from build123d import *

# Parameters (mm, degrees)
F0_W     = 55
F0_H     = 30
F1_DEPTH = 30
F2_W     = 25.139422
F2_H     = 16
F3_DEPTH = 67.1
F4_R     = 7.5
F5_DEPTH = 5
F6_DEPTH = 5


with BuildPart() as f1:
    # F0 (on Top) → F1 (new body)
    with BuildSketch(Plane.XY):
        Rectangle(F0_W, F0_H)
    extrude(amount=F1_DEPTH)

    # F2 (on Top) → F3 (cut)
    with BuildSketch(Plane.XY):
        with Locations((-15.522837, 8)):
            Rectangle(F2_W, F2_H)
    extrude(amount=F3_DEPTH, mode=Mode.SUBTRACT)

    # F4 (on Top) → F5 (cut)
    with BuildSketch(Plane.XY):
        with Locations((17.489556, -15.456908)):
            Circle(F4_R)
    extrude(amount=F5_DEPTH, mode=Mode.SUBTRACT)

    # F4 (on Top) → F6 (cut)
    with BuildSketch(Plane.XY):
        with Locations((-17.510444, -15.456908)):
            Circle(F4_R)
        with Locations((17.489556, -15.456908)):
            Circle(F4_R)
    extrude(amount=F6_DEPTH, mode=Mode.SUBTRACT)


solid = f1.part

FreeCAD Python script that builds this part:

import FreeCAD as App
import Part
import Sketcher

V = App.Vector
Q = App.Units.Quantity

doc = App.newDocument("Part")
body = doc.addObject("PartDesign::Body", "Body")

# Sketch on XY plane
sketch1 = body.newObject("Sketcher::SketchObject", "Sketch")
sketch1.AttachmentSupport = (doc.getObject("XY_Plane"), [""])
sketch1.MapMode = "FlatFace"
sketch1.addGeometry(Part.LineSegment(V(-28, 15, 0), V(-28, -15, 0)), False)
sketch1.addGeometry(Part.LineSegment(V(-28, -15, 0), V(28, -15, 0)), False)
sketch1.addGeometry(Part.LineSegment(V(28, -15, 0), V(28, 15, 0)), False)
sketch1.addGeometry(Part.LineSegment(V(28, 15, 0), V(-28, 15, 0)), False)
sketch1.addConstraint(Sketcher.Constraint("Coincident", 0, 2, 1, 1))
sketch1.addConstraint(Sketcher.Constraint("Coincident", 1, 2, 2, 1))
sketch1.addConstraint(Sketcher.Constraint("Coincident", 2, 2, 3, 1))
sketch1.addConstraint(Sketcher.Constraint("Coincident", 3, 2, 0, 1))
sketch1.addConstraint(Sketcher.Constraint("Vertical", 0))
sketch1.addConstraint(Sketcher.Constraint("Horizontal", 1))
sketch1.addConstraint(Sketcher.Constraint("Vertical", 2))
sketch1.addConstraint(Sketcher.Constraint("Horizontal", 3))
sketch1.addConstraint(Sketcher.Constraint("Symmetric", 0, 2, 2, 2, -1, 1))
sketch1.addConstraint(Sketcher.Constraint("DistanceX", 1, 1, 1, 2, Q("55 mm")))
sketch1.addConstraint(Sketcher.Constraint("DistanceY", 0, 2, 0, 1, Q("30 mm")))
pad1 = body.newObject("PartDesign::Pad", "Pad")
pad1.Profile = sketch1
pad1.Length = 30

# Sketch on XY plane
sketch2 = body.newObject("Sketcher::SketchObject", "Sketch001")
sketch2.AttachmentSupport = (doc.getObject("XY_Plane"), [""])
sketch2.MapMode = "FlatFace"
sketch2.addGeometry(Part.LineSegment(V(-28, 16, 0), V(-28, 0, 0)), False)
sketch2.addGeometry(Part.LineSegment(V(-28, 0, 0), V(-3, 0, 0)), False)
sketch2.addGeometry(Part.LineSegment(V(-3, 0, 0), V(-3, 16, 0)), False)
sketch2.addGeometry(Part.LineSegment(V(-3, 16, 0), V(-28, 16, 0)), False)
sketch2.addConstraint(Sketcher.Constraint("Coincident", 0, 2, 1, 1))
sketch2.addConstraint(Sketcher.Constraint("Coincident", 1, 2, 2, 1))
sketch2.addConstraint(Sketcher.Constraint("Coincident", 2, 2, 3, 1))
sketch2.addConstraint(Sketcher.Constraint("Coincident", 3, 2, 0, 1))
sketch2.addConstraint(Sketcher.Constraint("Vertical", 0))
sketch2.addConstraint(Sketcher.Constraint("Horizontal", 1))
sketch2.addConstraint(Sketcher.Constraint("Vertical", 2))
sketch2.addConstraint(Sketcher.Constraint("Horizontal", 3))
sketch2.addConstraint(Sketcher.Constraint("PointOnObject", 0, 2, -1))
sketch2.addConstraint(Sketcher.Constraint("DistanceY", 0, 2, 0, 1, Q("16 mm")))
sketch2.addConstraint(Sketcher.Constraint("DistanceX", 1, 1, 1, 2, Q("25.139422 mm")))
sketch2.addConstraint(Sketcher.Constraint("DistanceX", 0, 2, -1, 1, Q("28.092548 mm")))
pocket1 = body.newObject("PartDesign::Pocket", "Pocket")
pocket1.Profile = sketch2
pocket1.Length = 67.1
pocket1.Reversed = True

# Sketch on XY plane
sketch3 = body.newObject("Sketcher::SketchObject", "Sketch002")
sketch3.AttachmentSupport = (doc.getObject("XY_Plane"), [""])
sketch3.MapMode = "FlatFace"
sketch3.addGeometry(Part.Circle(V(17, -15, 0), V(0, 0, 1), 8), False)
sketch3.addConstraint(Sketcher.Constraint("Diameter", 0, Q("15 mm")))
sketch3.addConstraint(Sketcher.Constraint("DistanceX", -1, 1, 0, 3, Q("17.489556 mm")))
sketch3.addConstraint(Sketcher.Constraint("DistanceY", 0, 3, -1, 1, Q("15.456908 mm")))
pocket2 = body.newObject("PartDesign::Pocket", "Pocket001")
pocket2.Profile = sketch3
pocket2.Length = 5
pocket2.Reversed = True

# Sketch on XY plane
sketch4 = body.newObject("Sketcher::SketchObject", "Sketch003")
sketch4.AttachmentSupport = (doc.getObject("XY_Plane"), [""])
sketch4.MapMode = "FlatFace"
sketch4.addGeometry(Part.Circle(V(-18, -15, 0), V(0, 0, 1), 8), False)
sketch4.addGeometry(Part.Circle(V(17, -15, 0), V(0, 0, 1), 8), False)
sketch4.addConstraint(Sketcher.Constraint("Equal", 0, 1))
sketch4.addConstraint(Sketcher.Constraint("Horizontal", 0, 3, 1, 3))
sketch4.addConstraint(Sketcher.Constraint("Diameter", 0, Q("15 mm")))
sketch4.addConstraint(Sketcher.Constraint("DistanceX", 0, 3, 1, 3, Q("35 mm")))
sketch4.addConstraint(Sketcher.Constraint("DistanceX", 0, 3, -1, 1, Q("17.510444 mm")))
sketch4.addConstraint(Sketcher.Constraint("DistanceY", 0, 3, -1, 1, Q("15.456908 mm")))
pocket3 = body.newObject("PartDesign::Pocket", "Pocket002")
pocket3.Profile = sketch4
pocket3.Length = 5
pocket3.Reversed = True

doc.recompute()
